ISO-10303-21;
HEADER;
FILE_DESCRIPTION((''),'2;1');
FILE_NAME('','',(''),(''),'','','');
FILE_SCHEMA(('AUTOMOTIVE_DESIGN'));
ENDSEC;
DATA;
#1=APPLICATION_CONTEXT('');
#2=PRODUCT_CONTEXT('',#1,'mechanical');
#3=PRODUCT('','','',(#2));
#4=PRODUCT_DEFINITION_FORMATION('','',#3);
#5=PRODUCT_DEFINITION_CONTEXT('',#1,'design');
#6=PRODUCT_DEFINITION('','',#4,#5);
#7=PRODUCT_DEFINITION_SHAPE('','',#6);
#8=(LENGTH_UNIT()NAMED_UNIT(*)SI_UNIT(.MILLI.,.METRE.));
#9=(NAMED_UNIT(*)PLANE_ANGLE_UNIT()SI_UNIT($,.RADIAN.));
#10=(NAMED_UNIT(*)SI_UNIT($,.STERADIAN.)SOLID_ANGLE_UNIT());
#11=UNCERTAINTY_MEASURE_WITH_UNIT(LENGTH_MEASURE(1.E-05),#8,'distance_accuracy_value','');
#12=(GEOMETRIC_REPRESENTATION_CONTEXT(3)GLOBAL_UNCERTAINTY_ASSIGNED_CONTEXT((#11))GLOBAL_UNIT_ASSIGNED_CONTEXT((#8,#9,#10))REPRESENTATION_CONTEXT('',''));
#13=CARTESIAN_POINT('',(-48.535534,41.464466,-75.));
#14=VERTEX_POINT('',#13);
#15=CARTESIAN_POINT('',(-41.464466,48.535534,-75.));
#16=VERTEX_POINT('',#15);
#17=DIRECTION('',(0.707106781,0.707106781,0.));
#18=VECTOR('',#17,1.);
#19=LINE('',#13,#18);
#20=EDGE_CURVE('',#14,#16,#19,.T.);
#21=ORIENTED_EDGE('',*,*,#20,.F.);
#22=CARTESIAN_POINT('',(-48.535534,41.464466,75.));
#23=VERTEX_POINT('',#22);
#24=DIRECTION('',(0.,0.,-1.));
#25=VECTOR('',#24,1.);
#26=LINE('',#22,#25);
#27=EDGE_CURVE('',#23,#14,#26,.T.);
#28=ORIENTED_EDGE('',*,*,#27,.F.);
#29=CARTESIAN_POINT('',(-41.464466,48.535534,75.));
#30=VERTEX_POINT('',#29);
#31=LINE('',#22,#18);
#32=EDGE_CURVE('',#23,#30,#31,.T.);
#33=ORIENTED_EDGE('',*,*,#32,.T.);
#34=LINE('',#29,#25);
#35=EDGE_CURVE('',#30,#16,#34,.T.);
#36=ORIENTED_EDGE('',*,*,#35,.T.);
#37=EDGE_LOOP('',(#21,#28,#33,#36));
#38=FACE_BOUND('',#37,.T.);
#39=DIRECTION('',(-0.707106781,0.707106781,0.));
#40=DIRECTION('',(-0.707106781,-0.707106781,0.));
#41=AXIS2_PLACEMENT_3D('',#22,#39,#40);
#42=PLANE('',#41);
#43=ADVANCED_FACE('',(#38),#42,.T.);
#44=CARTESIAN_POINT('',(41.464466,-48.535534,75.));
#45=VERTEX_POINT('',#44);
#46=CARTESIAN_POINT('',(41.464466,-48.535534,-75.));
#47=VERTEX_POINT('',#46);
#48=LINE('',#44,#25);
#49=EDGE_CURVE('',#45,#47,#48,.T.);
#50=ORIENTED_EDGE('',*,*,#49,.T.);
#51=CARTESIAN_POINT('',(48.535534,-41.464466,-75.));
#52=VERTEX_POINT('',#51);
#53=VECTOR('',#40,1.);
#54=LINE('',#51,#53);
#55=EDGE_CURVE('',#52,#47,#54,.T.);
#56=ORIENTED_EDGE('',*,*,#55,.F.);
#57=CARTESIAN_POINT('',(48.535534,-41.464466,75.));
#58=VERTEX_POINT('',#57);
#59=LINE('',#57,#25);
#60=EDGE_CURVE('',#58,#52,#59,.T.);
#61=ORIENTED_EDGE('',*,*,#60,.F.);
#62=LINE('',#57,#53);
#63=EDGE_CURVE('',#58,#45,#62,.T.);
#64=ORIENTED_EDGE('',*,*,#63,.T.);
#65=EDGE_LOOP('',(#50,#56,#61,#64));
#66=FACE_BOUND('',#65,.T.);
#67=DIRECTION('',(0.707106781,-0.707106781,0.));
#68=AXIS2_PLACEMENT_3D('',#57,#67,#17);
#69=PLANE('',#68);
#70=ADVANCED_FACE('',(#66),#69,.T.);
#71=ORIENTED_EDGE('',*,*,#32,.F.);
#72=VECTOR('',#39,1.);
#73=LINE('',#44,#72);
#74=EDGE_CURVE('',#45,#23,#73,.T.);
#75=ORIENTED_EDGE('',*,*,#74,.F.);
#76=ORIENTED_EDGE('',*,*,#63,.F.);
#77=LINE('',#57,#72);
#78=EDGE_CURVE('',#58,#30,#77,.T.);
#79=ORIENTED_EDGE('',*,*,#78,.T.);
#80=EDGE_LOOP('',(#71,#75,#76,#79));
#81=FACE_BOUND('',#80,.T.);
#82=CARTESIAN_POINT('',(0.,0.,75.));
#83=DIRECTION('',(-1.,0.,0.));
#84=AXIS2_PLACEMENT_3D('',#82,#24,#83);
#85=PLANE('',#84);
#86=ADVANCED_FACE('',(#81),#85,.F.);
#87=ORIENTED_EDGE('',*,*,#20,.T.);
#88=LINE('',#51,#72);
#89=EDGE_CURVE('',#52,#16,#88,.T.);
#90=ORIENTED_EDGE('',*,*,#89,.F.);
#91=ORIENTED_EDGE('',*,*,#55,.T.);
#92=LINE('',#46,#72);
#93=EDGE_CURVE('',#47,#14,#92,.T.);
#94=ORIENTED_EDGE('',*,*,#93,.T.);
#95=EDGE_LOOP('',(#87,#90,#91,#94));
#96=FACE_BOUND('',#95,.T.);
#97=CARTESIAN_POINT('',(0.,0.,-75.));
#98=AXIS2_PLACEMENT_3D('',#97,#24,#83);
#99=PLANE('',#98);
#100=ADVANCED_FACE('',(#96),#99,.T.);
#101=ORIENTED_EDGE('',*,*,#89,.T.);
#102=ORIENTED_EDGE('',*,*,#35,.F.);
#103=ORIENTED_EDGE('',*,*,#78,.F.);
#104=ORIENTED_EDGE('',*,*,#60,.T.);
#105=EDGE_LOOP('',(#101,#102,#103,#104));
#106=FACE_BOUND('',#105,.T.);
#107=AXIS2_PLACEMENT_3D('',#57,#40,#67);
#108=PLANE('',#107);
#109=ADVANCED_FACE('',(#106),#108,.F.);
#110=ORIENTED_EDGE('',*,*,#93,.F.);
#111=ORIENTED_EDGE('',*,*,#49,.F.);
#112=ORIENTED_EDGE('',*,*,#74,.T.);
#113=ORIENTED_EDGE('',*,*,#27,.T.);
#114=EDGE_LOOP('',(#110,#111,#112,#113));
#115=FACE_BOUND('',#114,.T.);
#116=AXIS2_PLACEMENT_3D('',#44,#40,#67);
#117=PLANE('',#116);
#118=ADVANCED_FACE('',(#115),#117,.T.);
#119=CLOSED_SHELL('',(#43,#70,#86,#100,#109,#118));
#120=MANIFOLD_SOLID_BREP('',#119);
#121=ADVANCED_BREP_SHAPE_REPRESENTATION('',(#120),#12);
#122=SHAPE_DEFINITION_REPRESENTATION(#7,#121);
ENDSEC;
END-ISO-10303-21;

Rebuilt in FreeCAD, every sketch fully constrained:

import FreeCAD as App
import Part
import Sketcher
from FreeCAD import Vector
Q = App.Units.Quantity


def add_polygon(sketch, points):
    """Adds a closed chain of lines whose ends are joined by coincident constraints."""
    first, n = sketch.GeometryCount, len(points)
    for a, b in zip(points, points[1:] + points[:1]):
        sketch.addGeometry(Part.LineSegment(App.Vector(*a, 0), App.Vector(*b, 0)), False)
    for i in range(n):
        sketch.addConstraint(Sketcher.Constraint("Coincident", first + i, 2, first + (i + 1) % n, 1))

doc = App.newDocument("Part")
body = doc.addObject("PartDesign::Body", "Body")

sketch1 = body.newObject("Sketcher::SketchObject", "Sketch")
sketch1.AttachmentSupport = (doc.getObject("XY_Plane"), [""])
sketch1.MapMode = "FlatFace"
add_polygon(sketch1, [(49, -41), (-41, 49), (-49, 41), (41, -49)])
sketch1.addConstraint(Sketcher.Constraint("Symmetric", 0, 2, 2, 2, -1, 1))
sketch1.addConstraint(Sketcher.Constraint("Symmetric", 1, 2, 3, 2, -1, 1))
sketch1.addConstraint(Sketcher.Constraint("Perpendicular", 0, 1))
sketch1.addConstraint(Sketcher.Constraint("Angle", 0, Q("135 deg")))
sketch1.addConstraint(Sketcher.Constraint("Distance", 1, Q("10 mm")))
sketch1.addConstraint(Sketcher.Constraint("DistanceX", 1, 2, 2, 2, Q("90 mm")))
pad1 = body.newObject("PartDesign::Pad", "Pad")
pad1.Profile = sketch1
pad1.Length = 150
pad1.Midplane = True

doc.recompute()
